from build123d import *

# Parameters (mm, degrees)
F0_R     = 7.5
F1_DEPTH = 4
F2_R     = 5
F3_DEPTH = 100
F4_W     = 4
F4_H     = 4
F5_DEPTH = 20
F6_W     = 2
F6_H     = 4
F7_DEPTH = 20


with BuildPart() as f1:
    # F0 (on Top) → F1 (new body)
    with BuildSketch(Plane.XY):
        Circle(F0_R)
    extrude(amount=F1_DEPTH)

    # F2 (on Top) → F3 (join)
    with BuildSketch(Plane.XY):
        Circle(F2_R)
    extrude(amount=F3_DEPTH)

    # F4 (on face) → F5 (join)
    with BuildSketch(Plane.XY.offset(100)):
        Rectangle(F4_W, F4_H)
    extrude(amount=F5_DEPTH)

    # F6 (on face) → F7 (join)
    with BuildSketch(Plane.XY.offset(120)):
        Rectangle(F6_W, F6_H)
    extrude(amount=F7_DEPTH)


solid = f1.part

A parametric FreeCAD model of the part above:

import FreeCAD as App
import Part
import Sketcher

doc = App.newDocument("Part")
body = doc.addObject("PartDesign::Body", "Body")

sketch1 = body.newObject("Sketcher::SketchObject", "Sketch")
sketch1.AttachmentSupport = (doc.getObject("XY_Plane"), [""])
sketch1.MapMode = "FlatFace"
sketch1.addGeometry(Part.Circle(App.Vector(0, 0, 0), App.Vector(0, 0, 1), 8), False)
sketch1.addConstraint(Sketcher.Constraint("Coincident", 0, 3, -1, 1))
sketch1.addConstraint(Sketcher.Constraint("Diameter", 0, 15.0))
pad1 = body.newObject("PartDesign::Pad", "Pad")
pad1.Profile = sketch1
pad1.Length = 4

sketch2 = body.newObject("Sketcher::SketchObject", "Sketch001")
sketch2.AttachmentSupport = (doc.getObject("XY_Plane"), [""])
sketch2.MapMode = "FlatFace"
sketch2.addGeometry(Part.Circle(App.Vector(0, 0, 0), App.Vector(0, 0, 1), 5), False)
sketch2.addConstraint(Sketcher.Constraint("Coincident", 0, 3, -1, 1))
sketch2.addConstraint(Sketcher.Constraint("Diameter", 0, 10.0))
pad2 = body.newObject("PartDesign::Pad", "Pad001")
pad2.Profile = sketch2
pad2.Length = 100

sketch3 = body.newObject("Sketcher::SketchObject", "Sketch002")
sketch3.AttachmentSupport = (doc.getObject("XY_Plane"), [""])
sketch3.MapMode = "FlatFace"
sketch3.AttachmentOffset = App.Placement(App.Vector(0, 0, 100), App.Rotation())
sketch3.addGeometry(Part.LineSegment(App.Vector(-2, 2, 0), App.Vector(-2, -2, 0)), False)
sketch3.addGeometry(Part.LineSegment(App.Vector(-2, -2, 0), App.Vector(2, -2, 0)), False)
sketch3.addGeometry(Part.LineSegment(App.Vector(2, -2, 0), App.Vector(2, 2, 0)), False)
sketch3.addGeometry(Part.LineSegment(App.Vector(2, 2, 0), App.Vector(-2, 2, 0)), False)
sketch3.addConstraint(Sketcher.Constraint("Coincident", 0, 2, 1, 1))
sketch3.addConstraint(Sketcher.Constraint("Coincident", 1, 2, 2, 1))
sketch3.addConstraint(Sketcher.Constraint("Coincident", 2, 2, 3, 1))
sketch3.addConstraint(Sketcher.Constraint("Coincident", 3, 2, 0, 1))
sketch3.addConstraint(Sketcher.Constraint("Vertical", 0))
sketch3.addConstraint(Sketcher.Constraint("Horizontal", 1))
sketch3.addConstraint(Sketcher.Constraint("Vertical", 2))
sketch3.addConstraint(Sketcher.Constraint("Horizontal", 3))
sketch3.addConstraint(Sketcher.Constraint("Symmetric", 0, 2, 2, 2, -1, 1))
sketch3.addConstraint(Sketcher.Constraint("Equal", 3, 0))
sketch3.addConstraint(Sketcher.Constraint("DistanceX", 1, 1, 1, 2, 4.0))
pad3 = body.newObject("PartDesign::Pad", "Pad002")
pad3.Profile = sketch3
pad3.Length = 20

sketch4 = body.newObject("Sketcher::SketchObject", "Sketch003")
sketch4.AttachmentSupport = (doc.getObject("XY_Plane"), [""])
sketch4.MapMode = "FlatFace"
sketch4.AttachmentOffset = App.Placement(App.Vector(0, 0, 120), App.Rotation())
sketch4.addGeometry(Part.LineSegment(App.Vector(-1, 2, 0), App.Vector(-1, -2, 0)), False)
sketch4.addGeometry(Part.LineSegment(App.Vector(-1, -2, 0), App.Vector(1, -2, 0)), False)
sketch4.addGeometry(Part.LineSegment(App.Vector(1, -2, 0), App.Vector(1, 2, 0)), False)
sketch4.addGeometry(Part.LineSegment(App.Vector(1, 2, 0), App.Vector(-1, 2, 0)), False)
sketch4.addConstraint(Sketcher.Constraint("Coincident", 0, 2, 1, 1))
sketch4.addConstraint(Sketcher.Constraint("Coincident", 1, 2, 2, 1))
sketch4.addConstraint(Sketcher.Constraint("Coincident", 2, 2, 3, 1))
sketch4.addConstraint(Sketcher.Constraint("Coincident", 3, 2, 0, 1))
sketch4.addConstraint(Sketcher.Constraint("Vertical", 0))
sketch4.addConstraint(Sketcher.Constraint("Horizontal", 1))
sketch4.addConstraint(Sketcher.Constraint("Vertical", 2))
sketch4.addConstraint(Sketcher.Constraint("Horizontal", 3))
sketch4.addConstraint(Sketcher.Constraint("Symmetric", 0, 2, 2, 2, -1, 1))
sketch4.addConstraint(Sketcher.Constraint("DistanceX", 1, 1, 1, 2, 2.0))
sketch4.addConstraint(Sketcher.Constraint("DistanceY", 0, 2, 0, 1, 4.0))
pad4 = body.newObject("PartDesign::Pad", "Pad003")
pad4.Profile = sketch4
pad4.Length = 20

doc.recompute()
